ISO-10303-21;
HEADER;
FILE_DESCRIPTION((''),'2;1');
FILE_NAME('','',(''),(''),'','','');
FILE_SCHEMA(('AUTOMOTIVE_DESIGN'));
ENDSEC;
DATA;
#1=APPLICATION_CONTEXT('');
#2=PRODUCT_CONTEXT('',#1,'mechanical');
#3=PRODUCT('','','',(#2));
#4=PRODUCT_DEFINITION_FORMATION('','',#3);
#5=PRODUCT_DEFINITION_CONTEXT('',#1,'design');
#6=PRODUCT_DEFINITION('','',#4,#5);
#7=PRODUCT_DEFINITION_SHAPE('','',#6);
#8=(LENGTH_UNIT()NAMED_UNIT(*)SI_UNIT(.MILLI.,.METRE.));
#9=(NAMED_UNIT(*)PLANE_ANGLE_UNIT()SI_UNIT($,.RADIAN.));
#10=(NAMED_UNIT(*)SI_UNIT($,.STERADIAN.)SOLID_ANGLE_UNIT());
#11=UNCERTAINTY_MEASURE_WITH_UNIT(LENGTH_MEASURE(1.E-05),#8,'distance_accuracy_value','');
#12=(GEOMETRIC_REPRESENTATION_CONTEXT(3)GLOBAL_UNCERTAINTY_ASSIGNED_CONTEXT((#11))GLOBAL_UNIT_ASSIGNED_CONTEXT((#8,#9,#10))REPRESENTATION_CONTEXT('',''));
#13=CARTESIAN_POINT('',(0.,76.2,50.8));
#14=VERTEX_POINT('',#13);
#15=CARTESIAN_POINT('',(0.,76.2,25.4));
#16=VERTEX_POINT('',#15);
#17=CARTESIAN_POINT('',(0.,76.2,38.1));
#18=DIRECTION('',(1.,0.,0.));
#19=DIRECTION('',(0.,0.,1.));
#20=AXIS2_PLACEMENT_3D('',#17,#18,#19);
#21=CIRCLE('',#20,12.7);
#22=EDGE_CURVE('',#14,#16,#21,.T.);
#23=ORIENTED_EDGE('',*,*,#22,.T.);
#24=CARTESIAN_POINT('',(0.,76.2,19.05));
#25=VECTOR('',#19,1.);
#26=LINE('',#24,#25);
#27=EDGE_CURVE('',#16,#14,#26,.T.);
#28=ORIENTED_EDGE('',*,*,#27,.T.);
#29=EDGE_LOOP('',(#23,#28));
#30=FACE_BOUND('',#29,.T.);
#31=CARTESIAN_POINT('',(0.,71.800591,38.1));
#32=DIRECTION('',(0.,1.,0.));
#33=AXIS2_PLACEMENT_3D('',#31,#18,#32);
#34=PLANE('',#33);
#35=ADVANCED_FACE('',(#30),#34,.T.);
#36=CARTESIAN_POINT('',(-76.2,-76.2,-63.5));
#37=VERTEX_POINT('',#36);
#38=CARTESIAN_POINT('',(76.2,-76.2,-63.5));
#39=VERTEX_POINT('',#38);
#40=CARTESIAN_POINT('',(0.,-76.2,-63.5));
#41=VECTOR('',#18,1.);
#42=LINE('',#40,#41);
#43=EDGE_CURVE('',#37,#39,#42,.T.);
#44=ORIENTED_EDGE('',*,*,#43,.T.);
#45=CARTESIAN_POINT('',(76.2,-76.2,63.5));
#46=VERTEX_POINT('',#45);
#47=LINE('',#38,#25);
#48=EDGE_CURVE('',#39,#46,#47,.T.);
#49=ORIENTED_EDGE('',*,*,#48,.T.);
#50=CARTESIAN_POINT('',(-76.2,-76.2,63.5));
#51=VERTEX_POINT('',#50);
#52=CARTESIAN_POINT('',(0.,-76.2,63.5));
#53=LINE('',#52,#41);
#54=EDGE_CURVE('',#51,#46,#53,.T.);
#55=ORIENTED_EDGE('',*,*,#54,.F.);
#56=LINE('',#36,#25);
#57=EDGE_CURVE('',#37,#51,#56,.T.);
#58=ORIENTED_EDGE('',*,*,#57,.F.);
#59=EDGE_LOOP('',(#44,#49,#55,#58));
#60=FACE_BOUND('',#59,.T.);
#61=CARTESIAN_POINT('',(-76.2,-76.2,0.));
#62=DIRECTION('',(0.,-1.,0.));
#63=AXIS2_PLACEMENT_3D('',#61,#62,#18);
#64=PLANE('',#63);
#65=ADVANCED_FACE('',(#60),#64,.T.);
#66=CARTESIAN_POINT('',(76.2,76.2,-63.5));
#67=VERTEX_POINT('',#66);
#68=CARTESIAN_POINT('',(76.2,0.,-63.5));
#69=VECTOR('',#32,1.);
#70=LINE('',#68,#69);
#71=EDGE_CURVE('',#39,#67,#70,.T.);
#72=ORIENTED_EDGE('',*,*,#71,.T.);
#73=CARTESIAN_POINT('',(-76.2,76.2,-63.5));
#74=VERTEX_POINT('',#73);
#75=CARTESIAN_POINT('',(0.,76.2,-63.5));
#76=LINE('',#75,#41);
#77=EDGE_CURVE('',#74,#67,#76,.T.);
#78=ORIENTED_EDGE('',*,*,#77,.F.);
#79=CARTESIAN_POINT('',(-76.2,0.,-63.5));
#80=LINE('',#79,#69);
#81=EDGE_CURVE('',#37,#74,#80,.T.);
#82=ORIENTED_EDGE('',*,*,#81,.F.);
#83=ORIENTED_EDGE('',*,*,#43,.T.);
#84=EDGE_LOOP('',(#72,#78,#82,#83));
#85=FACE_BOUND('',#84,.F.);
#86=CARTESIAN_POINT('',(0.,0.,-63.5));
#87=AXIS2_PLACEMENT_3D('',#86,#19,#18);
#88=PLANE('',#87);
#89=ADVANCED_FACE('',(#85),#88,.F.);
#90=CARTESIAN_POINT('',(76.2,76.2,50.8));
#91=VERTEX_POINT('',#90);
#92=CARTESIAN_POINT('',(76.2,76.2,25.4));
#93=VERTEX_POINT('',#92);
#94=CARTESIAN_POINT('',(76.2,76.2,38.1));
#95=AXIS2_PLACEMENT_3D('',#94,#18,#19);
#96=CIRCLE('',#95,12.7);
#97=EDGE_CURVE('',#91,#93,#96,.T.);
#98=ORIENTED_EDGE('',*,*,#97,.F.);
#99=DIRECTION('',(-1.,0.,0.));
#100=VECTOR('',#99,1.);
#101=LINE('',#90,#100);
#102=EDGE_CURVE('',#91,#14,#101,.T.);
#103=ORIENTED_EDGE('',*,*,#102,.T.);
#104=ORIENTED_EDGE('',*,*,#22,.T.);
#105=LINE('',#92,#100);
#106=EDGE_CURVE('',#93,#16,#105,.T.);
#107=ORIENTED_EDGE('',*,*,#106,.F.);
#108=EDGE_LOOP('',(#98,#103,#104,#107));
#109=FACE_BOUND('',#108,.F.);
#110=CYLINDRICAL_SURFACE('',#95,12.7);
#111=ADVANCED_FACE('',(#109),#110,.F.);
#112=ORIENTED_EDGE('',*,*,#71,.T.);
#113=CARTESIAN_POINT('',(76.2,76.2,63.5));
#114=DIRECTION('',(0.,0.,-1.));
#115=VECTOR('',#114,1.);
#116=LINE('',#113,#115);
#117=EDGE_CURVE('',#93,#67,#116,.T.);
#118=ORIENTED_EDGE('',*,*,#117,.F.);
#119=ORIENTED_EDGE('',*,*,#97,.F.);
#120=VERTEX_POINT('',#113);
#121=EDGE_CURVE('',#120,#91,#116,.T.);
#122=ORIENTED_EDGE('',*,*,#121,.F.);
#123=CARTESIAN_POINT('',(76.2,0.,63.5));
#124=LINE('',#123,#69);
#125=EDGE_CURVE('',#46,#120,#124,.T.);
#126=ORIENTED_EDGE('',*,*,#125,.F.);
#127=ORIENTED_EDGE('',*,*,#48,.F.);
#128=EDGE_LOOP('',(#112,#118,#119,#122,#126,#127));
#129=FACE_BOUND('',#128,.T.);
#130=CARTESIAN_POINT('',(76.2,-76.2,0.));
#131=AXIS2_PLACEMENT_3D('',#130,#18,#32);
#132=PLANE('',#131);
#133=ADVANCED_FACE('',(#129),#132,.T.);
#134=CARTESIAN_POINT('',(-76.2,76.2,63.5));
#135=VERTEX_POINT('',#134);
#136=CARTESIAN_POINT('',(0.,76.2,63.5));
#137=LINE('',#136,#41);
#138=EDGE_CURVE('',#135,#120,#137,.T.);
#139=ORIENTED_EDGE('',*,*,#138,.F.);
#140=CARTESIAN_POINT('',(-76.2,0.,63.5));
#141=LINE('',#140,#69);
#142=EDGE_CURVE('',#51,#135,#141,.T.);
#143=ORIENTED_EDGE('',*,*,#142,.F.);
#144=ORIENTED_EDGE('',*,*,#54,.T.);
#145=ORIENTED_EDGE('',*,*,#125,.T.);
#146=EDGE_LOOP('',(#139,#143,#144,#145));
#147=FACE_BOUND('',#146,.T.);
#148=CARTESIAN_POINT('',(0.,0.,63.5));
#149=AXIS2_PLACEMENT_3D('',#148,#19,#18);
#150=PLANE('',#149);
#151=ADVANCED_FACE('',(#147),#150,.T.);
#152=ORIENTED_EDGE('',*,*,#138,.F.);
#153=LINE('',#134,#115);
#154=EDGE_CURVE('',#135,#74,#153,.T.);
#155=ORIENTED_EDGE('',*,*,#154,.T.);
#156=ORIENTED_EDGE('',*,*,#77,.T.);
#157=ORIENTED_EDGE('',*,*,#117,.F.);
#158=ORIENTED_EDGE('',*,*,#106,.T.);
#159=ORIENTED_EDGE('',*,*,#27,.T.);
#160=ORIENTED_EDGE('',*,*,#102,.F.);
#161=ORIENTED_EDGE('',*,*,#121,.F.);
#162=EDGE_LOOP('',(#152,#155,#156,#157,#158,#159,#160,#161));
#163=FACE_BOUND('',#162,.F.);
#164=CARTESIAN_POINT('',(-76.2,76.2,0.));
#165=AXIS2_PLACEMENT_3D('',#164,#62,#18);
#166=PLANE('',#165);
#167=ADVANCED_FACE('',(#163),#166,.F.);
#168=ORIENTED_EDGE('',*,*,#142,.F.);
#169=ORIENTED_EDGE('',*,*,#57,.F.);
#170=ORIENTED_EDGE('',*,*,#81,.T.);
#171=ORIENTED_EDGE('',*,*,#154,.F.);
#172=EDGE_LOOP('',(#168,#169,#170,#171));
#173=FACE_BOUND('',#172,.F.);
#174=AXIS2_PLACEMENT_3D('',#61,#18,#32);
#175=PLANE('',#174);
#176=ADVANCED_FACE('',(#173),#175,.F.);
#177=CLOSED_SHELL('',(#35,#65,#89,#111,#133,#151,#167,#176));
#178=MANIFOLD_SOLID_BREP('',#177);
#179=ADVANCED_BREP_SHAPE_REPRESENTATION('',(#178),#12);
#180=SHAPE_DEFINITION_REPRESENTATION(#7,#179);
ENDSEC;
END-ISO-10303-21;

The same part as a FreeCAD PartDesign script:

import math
import FreeCAD as App
import Part
import Sketcher
from FreeCAD import Vector
Q = App.Units.Quantity


def add_polygon(sketch, points):
    """Adds a closed chain of lines whose ends are joined by coincident constraints."""
    first, n = sketch.GeometryCount, len(points)
    for a, b in zip(points, points[1:] + points[:1]):
        sketch.addGeometry(Part.LineSegment(App.Vector(*a, 0), App.Vector(*b, 0)), False)
    for i in range(n):
        sketch.addConstraint(Sketcher.Constraint("Coincident", first + i, 2, first + (i + 1) % n, 1))

doc = App.newDocument("Part")
body = doc.addObject("PartDesign::Body", "Body")

sketch1 = body.newObject("Sketcher::SketchObject", "Sketch")
sketch1.AttachmentSupport = (doc.getObject("XY_Plane"), [""])
sketch1.MapMode = "FlatFace"
add_polygon(sketch1, [(-76, 76), (-76, -76), (76, -76), (76, 76)])
sketch1.addConstraint([
    Sketcher.Constraint("Vertical", 0),
    Sketcher.Constraint("Horizontal", 1),
    Sketcher.Constraint("Vertical", 2),
    Sketcher.Constraint("Horizontal", 3),
    Sketcher.Constraint("Symmetric", 0, 2, 2, 2, -1, 1),
    Sketcher.Constraint("Equal", 3, 0),
    Sketcher.Constraint("DistanceX", 1, 1, 1, 2, Q("6 in")),
])
pad1 = body.newObject("PartDesign::Pad", "Pad")
pad1.Profile = sketch1
pad1.Length = Q("5 in")
pad1.Midplane = True

sketch2 = body.newObject("Sketcher::SketchObject", "Sketch001")
sketch2.AttachmentSupport = (doc.getObject("YZ_Plane"), [""])
sketch2.MapMode = "FlatFace"
sketch2.AttachmentOffset = App.Placement(Vector(0, 0, 3 * 25.4), App.Rotation())
sketch2.addGeometry([
    Part.ArcOfCircle(Part.Circle(Vector(76, 38, 0), Vector(0, 0, 1), 13), math.radians(90), math.radians(270)),
    Part.ArcOfCircle(Part.Circle(Vector(76, 38, 0), Vector(0, 0, 1), 13), math.radians(-90), math.radians(0)),
    Part.ArcOfCircle(Part.Circle(Vector(76, 38, 0), Vector(0, 0, 1), 13), math.radians(0), math.radians(90)),
], False)
sketch2.addConstraint([
    Sketcher.Constraint("Tangent", 0, 2, 1, 1),
    Sketcher.Constraint("Tangent", 1, 2, 2, 1),
    Sketcher.Constraint("Tangent", 2, 2, 0, 1),
    Sketcher.Constraint("Horizontal", 2, 3, 1, 2),
    Sketcher.Constraint("Vertical", 2, 3, 0, 2),
    Sketcher.Constraint("Vertical", 0, 2, 2, 2),
    Sketcher.Constraint("Radius", 0, Q("0.5 in")),
    Sketcher.Constraint("DistanceX", -1, 1, 0, 3, Q("3 in")),
    Sketcher.Constraint("DistanceY", -1, 1, 0, 2, Q("1 in")),
])
pocket1 = body.newObject("PartDesign::Pocket", "Pocket")
pocket1.Profile = sketch2
pocket1.Length = Q("3 in")

doc.recompute()
